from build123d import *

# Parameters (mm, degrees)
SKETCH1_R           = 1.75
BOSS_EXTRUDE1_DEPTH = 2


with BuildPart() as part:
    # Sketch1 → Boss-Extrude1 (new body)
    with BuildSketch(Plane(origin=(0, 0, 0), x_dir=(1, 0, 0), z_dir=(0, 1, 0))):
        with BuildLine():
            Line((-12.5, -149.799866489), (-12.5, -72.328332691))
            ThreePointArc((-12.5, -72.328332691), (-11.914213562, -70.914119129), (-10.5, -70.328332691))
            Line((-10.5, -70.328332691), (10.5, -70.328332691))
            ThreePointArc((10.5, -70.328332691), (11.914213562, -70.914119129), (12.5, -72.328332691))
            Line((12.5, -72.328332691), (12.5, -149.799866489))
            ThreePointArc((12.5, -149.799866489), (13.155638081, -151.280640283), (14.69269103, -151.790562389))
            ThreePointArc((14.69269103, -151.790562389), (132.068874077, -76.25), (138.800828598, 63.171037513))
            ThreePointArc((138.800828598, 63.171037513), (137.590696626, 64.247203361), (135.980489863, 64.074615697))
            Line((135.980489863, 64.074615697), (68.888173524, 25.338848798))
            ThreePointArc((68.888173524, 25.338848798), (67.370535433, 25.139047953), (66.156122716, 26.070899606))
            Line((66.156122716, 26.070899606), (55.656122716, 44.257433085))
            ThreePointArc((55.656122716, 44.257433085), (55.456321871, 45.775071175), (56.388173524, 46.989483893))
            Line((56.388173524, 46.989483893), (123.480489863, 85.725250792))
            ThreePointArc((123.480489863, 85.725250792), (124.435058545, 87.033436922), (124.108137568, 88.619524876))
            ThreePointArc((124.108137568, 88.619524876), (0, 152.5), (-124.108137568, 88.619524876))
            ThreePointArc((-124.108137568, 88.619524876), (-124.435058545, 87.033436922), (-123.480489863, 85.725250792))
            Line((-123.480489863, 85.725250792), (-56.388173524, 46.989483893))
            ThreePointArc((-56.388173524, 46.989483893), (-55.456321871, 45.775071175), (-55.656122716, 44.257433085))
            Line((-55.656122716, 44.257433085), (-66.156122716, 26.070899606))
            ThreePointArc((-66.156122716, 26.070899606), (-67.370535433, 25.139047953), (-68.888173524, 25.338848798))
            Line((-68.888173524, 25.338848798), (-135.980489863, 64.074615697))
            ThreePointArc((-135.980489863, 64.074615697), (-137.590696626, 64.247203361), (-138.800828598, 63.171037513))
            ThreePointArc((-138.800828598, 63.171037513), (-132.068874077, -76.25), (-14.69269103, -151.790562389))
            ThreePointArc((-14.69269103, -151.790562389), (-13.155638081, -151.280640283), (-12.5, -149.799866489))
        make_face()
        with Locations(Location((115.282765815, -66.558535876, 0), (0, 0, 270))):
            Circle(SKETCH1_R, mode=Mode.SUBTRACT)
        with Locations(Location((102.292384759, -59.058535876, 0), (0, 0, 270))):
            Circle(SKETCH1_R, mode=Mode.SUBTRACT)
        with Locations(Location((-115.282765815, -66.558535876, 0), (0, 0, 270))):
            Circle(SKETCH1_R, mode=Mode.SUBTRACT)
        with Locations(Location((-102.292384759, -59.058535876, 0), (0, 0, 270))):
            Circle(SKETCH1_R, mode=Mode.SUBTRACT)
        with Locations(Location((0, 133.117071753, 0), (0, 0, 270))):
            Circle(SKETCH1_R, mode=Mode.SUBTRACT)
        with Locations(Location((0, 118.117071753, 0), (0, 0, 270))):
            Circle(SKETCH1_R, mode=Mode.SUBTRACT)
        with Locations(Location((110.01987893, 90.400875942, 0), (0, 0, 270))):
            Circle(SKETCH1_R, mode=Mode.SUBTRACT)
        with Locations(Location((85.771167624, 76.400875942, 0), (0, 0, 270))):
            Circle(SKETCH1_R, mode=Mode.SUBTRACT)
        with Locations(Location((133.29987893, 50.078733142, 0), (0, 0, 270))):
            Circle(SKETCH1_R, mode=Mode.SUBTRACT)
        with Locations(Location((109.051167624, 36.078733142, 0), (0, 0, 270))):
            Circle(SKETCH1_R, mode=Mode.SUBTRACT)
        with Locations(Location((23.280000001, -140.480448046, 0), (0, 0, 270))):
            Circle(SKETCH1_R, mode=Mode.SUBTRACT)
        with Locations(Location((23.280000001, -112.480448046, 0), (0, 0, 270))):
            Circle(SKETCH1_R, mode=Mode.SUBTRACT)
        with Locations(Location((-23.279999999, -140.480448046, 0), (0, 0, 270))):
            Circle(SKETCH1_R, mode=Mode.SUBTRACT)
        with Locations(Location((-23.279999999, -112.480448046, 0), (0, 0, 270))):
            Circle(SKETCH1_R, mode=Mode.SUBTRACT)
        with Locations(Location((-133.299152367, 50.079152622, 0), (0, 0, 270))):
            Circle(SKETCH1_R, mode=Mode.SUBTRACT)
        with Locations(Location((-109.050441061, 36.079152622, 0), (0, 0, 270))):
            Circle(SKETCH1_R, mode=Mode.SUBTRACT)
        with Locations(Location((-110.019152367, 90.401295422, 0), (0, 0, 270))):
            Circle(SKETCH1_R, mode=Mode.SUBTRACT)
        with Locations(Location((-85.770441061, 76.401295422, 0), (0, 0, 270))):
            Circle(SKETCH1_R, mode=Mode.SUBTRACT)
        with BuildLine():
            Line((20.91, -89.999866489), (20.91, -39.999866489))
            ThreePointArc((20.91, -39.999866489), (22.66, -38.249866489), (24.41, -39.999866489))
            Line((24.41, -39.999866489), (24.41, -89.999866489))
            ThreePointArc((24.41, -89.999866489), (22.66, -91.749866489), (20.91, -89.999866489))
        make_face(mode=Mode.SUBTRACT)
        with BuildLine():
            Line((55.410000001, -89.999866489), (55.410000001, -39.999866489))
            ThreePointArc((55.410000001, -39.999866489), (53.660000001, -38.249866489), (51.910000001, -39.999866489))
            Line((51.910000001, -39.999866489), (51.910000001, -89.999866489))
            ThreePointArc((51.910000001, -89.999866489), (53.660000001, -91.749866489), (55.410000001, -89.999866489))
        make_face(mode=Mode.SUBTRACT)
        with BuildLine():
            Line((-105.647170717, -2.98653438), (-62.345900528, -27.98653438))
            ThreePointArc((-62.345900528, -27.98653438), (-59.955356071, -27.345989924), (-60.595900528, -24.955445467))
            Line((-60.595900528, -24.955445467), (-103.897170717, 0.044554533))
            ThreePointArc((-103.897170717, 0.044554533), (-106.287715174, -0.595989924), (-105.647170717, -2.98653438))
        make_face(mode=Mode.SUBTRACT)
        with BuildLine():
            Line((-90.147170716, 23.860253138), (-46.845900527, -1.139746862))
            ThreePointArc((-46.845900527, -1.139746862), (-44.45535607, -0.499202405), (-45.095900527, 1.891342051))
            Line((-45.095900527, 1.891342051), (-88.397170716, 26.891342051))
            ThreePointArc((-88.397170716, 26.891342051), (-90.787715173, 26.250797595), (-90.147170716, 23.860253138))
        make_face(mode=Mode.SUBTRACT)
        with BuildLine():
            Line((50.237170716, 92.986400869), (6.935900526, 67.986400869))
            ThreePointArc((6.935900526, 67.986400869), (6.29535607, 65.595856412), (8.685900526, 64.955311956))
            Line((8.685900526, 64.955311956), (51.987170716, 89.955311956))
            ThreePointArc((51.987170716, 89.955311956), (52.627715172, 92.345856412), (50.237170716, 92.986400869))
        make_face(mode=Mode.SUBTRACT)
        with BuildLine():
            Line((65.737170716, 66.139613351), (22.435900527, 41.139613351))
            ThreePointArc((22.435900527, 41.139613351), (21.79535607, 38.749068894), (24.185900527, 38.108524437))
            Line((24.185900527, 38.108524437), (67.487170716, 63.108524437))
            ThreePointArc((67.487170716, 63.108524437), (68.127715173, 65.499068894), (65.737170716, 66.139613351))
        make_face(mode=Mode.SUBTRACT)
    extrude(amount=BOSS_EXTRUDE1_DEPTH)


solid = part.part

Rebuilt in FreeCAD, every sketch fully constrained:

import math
import FreeCAD as App
import Part
import Sketcher

V = App.Vector
Q = App.Units.Quantity

doc = App.newDocument("Part")
body = doc.addObject("PartDesign::Body", "Body")

# Sketch on XZ plane
sketch1 = doc.addObject("Sketcher::SketchObject", "Sketch")
body.addObject(sketch1)
sketch1.AttachmentSupport = (doc.XZ_Plane, [""])
sketch1.MapMode = "FlatFace"
sketch1.addGeometry([
    Part.LineSegment(V(-12.5, 149.8, 0), V(-12.5, 72.3, 0)),  # 0
    Part.ArcOfCircle(Part.Circle(V(-10.5, 72.3, 0), V(0, 0, 1), 2), math.radians(-180), math.radians(-90)),  # 1
    Part.LineSegment(V(-10.5, 70.3, 0), V(10.5, 70.3, 0)),  # 2
    Part.ArcOfCircle(Part.Circle(V(10.5, 72.3, 0), V(0, 0, 1), 2), math.radians(-90), math.radians(0)),  # 3
    Part.LineSegment(V(12.5, 72.3, 0), V(12.5, 149.8, 0)),  # 4
    Part.ArcOfCircle(Part.Circle(V(14.5, 149.8, 0), V(0, 0, 1), 2), math.radians(84), math.radians(180)),  # 5
    Part.ArcOfCircle(Part.Circle(V(0, 0, 0), V(0, 0, 1), 152.5), math.radians(-24), math.radians(84)),  # 6
    Part.ArcOfCircle(Part.Circle(V(137, -62.3, 0), V(0, 0, 1), 2), math.radians(-120), math.radians(-24)),  # 7
    Part.LineSegment(V(136, -64.1, 0), V(68.9, -25.3, 0)),  # 8
    Part.ArcOfCircle(Part.Circle(V(67.9, -27.1, 0), V(0, 0, 1), 2), math.radians(60), math.radians(150)),  # 9
    Part.LineSegment(V(66.2, -26.1, 0), V(55.7, -44.3, 0)),  # 10
    Part.ArcOfCircle(Part.Circle(V(57.4, -45.3, 0), V(0, 0, 1), 2), math.radians(150), math.radians(240)),  # 11
    Part.LineSegment(V(56.4, -47, 0), V(123.5, -85.7, 0)),  # 12
    Part.ArcOfCircle(Part.Circle(V(122.5, -87.5, 0), V(0, 0, 1), 2), math.radians(-36), math.radians(60)),  # 13
    Part.ArcOfCircle(Part.Circle(V(0, 0, 0), V(0, 0, 1), 152.5), math.radians(-144), math.radians(-36)),  # 14
    Part.ArcOfCircle(Part.Circle(V(-122.5, -87.5, 0), V(0, 0, 1), 2), math.radians(120), math.radians(216)),  # 15
    Part.LineSegment(V(-123.5, -85.7, 0), V(-56.4, -47, 0)),  # 16
    Part.ArcOfCircle(Part.Circle(V(-57.4, -45.3, 0), V(0, 0, 1), 2), math.radians(-60), math.radians(30)),  # 17
    Part.LineSegment(V(-55.7, -44.3, 0), V(-66.2, -26.1, 0)),  # 18
    Part.ArcOfCircle(Part.Circle(V(-67.9, -27.1, 0), V(0, 0, 1), 2), math.radians(30), math.radians(120)),  # 19
    Part.LineSegment(V(-68.9, -25.3, 0), V(-136, -64.1, 0)),  # 20
    Part.ArcOfCircle(Part.Circle(V(-137, -62.3, 0), V(0, 0, 1), 2), math.radians(-156), math.radians(-60)),  # 21
    Part.ArcOfCircle(Part.Circle(V(0, 0, 0), V(0, 0, 1), 152.5), math.radians(96), math.radians(204)),  # 22
    Part.ArcOfCircle(Part.Circle(V(-14.5, 149.8, 0), V(0, 0, 1), 2), math.radians(0), math.radians(96)),  # 23
    Part.Circle(V(-23.3, 140.5, 0), V(0, 0, 1), 1.8),  # 24
    Part.Circle(V(-23.3, 112.5, 0), V(0, 0, 1), 1.8),  # 25
    Part.Circle(V(-115.3, 66.6, 0), V(0, 0, 1), 1.8),  # 26
    Part.Circle(V(-102.3, 59.1, 0), V(0, 0, 1), 1.8),  # 27
    Part.LineSegment(V(-62.3, 28, 0), V(-105.6, 3, 0)),  # 28
    Part.ArcOfCircle(Part.Circle(V(-104.8, 1.5, 0), V(0, 0, 1), 1.8), math.radians(120), math.radians(300)),  # 29
    Part.LineSegment(V(-103.9, 0, 0), V(-60.6, 25, 0)),  # 30
    Part.ArcOfCircle(Part.Circle(V(-61.5, 26.5, 0), V(0, 0, 1), 1.8), math.radians(-60), math.radians(120)),  # 31
    Part.Circle(V(23.3, 140.5, 0), V(0, 0, 1), 1.8),  # 32
    Part.Circle(V(23.3, 112.5, 0), V(0, 0, 1), 1.8),  # 33
    Part.ArcOfCircle(Part.Circle(V(22.7, 90, 0), V(0, 0, 1), 1.8), math.radians(0), math.radians(180)),  # 34
    Part.LineSegment(V(20.9, 90, 0), V(20.9, 40, 0)),  # 35
    Part.ArcOfCircle(Part.Circle(V(22.7, 40, 0), V(0, 0, 1), 1.8), math.radians(180), math.radians(360)),  # 36
    Part.LineSegment(V(24.4, 40, 0), V(24.4, 90, 0)),  # 37
    Part.LineSegment(V(55.4, 40, 0), V(55.4, 90, 0)),  # 38
    Part.ArcOfCircle(Part.Circle(V(53.7, 90, 0), V(0, 0, 1), 1.8), math.radians(0), math.radians(180)),  # 39
    Part.LineSegment(V(51.9, 90, 0), V(51.9, 40, 0)),  # 40
    Part.ArcOfCircle(Part.Circle(V(53.7, 40, 0), V(0, 0, 1), 1.8), math.radians(180), math.radians(360)),  # 41
    Part.Circle(V(115.3, 66.6, 0), V(0, 0, 1), 1.8),  # 42
    Part.Circle(V(102.3, 59.1, 0), V(0, 0, 1), 1.8),  # 43
    Part.LineSegment(V(-46.8, 1.1, 0), V(-90.1, -23.9, 0)),  # 44
    Part.ArcOfCircle(Part.Circle(V(-89.3, -25.4, 0), V(0, 0, 1), 1.8), math.radians(120), math.radians(300)),  # 45
    Part.LineSegment(V(-88.4, -26.9, 0), V(-45.1, -1.9, 0)),  # 46
    Part.ArcOfCircle(Part.Circle(V(-46, -0.4, 0), V(0, 0, 1), 1.8), math.radians(-60), math.radians(120)),  # 47
    Part.Circle(V(-109.1, -36.1, 0), V(0, 0, 1), 1.8),  # 48
    Part.Circle(V(-133.3, -50.1, 0), V(0, 0, 1), 1.8),  # 49
    Part.Circle(V(-110, -90.4, 0), V(0, 0, 1), 1.8),  # 50
    Part.Circle(V(-85.8, -76.4, 0), V(0, 0, 1), 1.8),  # 51
    Part.Circle(V(0, -118.1, 0), V(0, 0, 1), 1.8),  # 52
    Part.Circle(V(0, -133.1, 0), V(0, 0, 1), 1.8),  # 53
    Part.LineSegment(V(22.4, -41.1, 0), V(65.7, -66.1, 0)),  # 54
    Part.ArcOfCircle(Part.Circle(V(66.6, -64.6, 0), V(0, 0, 1), 1.8), math.radians(-120), math.radians(60)),  # 55
    Part.LineSegment(V(67.5, -63.1, 0), V(24.2, -38.1, 0)),  # 56
    Part.ArcOfCircle(Part.Circle(V(23.3, -39.6, 0), V(0, 0, 1), 1.8), math.radians(60), math.radians(240)),  # 57
    Part.Circle(V(109.1, -36.1, 0), V(0, 0, 1), 1.8),  # 58
    Part.Circle(V(133.3, -50.1, 0), V(0, 0, 1), 1.8),  # 59
    Part.LineSegment(V(6.9, -68, 0), V(50.2, -93, 0)),  # 60
    Part.ArcOfCircle(Part.Circle(V(51.1, -91.5, 0), V(0, 0, 1), 1.8), math.radians(-120), math.radians(60)),  # 61
    Part.LineSegment(V(52, -90, 0), V(8.7, -65, 0)),  # 62
    Part.ArcOfCircle(Part.Circle(V(7.8, -66.5, 0), V(0, 0, 1), 1.8), math.radians(60), math.radians(240)),  # 63
    Part.Circle(V(85.8, -76.4, 0), V(0, 0, 1), 1.8),  # 64
    Part.Circle(V(110, -90.4, 0), V(0, 0, 1), 1.8),  # 65
], False)
sketch1.addConstraint([
    Sketcher.Constraint("Tangent", 0, 2, 1, 1),
    Sketcher.Constraint("Tangent", 1, 2, 2, 1),
    Sketcher.Constraint("Tangent", 2, 2, 3, 1),
    Sketcher.Constraint("Tangent", 3, 2, 4, 1),
    Sketcher.Constraint("Tangent", 4, 2, 5, 2),
    Sketcher.Constraint("Tangent", 5, 1, 6, 2),
    Sketcher.Constraint("Tangent", 6, 1, 7, 2),
    Sketcher.Constraint("Tangent", 7, 1, 8, 1),
    Sketcher.Constraint("Tangent", 8, 2, 9, 1),
    Sketcher.Constraint("Tangent", 9, 2, 10, 1),
    Sketcher.Constraint("Tangent", 10, 2, 11, 1),
    Sketcher.Constraint("Tangent", 11, 2, 12, 1),
    Sketcher.Constraint("Tangent", 12, 2, 13, 2),
    Sketcher.Constraint("Tangent", 13, 1, 14, 2),
    Sketcher.Constraint("Tangent", 14, 1, 15, 2),
    Sketcher.Constraint("Tangent", 15, 1, 16, 1),
    Sketcher.Constraint("Tangent", 16, 2, 17, 1),
    Sketcher.Constraint("Tangent", 17, 2, 18, 1),
    Sketcher.Constraint("Tangent", 18, 2, 19, 1),
    Sketcher.Constraint("Tangent", 19, 2, 20, 1),
    Sketcher.Constraint("Tangent", 20, 2, 21, 2),
    Sketcher.Constraint("Tangent", 21, 1, 22, 2),
    Sketcher.Constraint("Tangent", 22, 1, 23, 2),
    Sketcher.Constraint("Tangent", 23, 1, 0, 1),
    Sketcher.Constraint("Tangent", 28, 2, 29, 1),
    Sketcher.Constraint("Tangent", 29, 2, 30, 1),
    Sketcher.Constraint("Tangent", 30, 2, 31, 1),
    Sketcher.Constraint("Tangent", 31, 2, 28, 1),
    Sketcher.Constraint("Tangent", 34, 2, 35, 1),
    Sketcher.Constraint("Tangent", 35, 2, 36, 1),
    Sketcher.Constraint("Tangent", 36, 2, 37, 1),
    Sketcher.Constraint("Tangent", 37, 2, 34, 1),
    Sketcher.Constraint("Tangent", 38, 2, 39, 1),
    Sketcher.Constraint("Tangent", 39, 2, 40, 1),
    Sketcher.Constraint("Tangent", 40, 2, 41, 1),
    Sketcher.Constraint("Tangent", 41, 2, 38, 1),
    Sketcher.Constraint("Tangent", 44, 2, 45, 1),
    Sketcher.Constraint("Tangent", 45, 2, 46, 1),
    Sketcher.Constraint("Tangent", 46, 2, 47, 1),
    Sketcher.Constraint("Tangent", 47, 2, 44, 1),
    Sketcher.Constraint("Tangent", 54, 2, 55, 1),
    Sketcher.Constraint("Tangent", 55, 2, 56, 1),
    Sketcher.Constraint("Tangent", 56, 2, 57, 1),
    Sketcher.Constraint("Tangent", 57, 2, 54, 1),
    Sketcher.Constraint("Tangent", 60, 2, 61, 1),
    Sketcher.Constraint("Tangent", 61, 2, 62, 1),
    Sketcher.Constraint("Tangent", 62, 2, 63, 1),
    Sketcher.Constraint("Tangent", 63, 2, 60, 1),
    Sketcher.Constraint("Vertical", 0),
    Sketcher.Constraint("Horizontal", 2),
    Sketcher.Constraint("Vertical", 4),
    Sketcher.Constraint("Vertical", 35),
    Sketcher.Constraint("Vertical", 37),
    Sketcher.Constraint("Vertical", 38),
    Sketcher.Constraint("Vertical", 40),
    Sketcher.Constraint("Coincident", 6, 3, -1, 1),
    Sketcher.Constraint("Coincident", 14, 3, -1, 1),
    Sketcher.Constraint("Coincident", 22, 3, -1, 1),
    Sketcher.Constraint("Equal", 1, 3),
    Sketcher.Constraint("Equal", 3, 5),
    Sketcher.Constraint("Equal", 5, 7),
    Sketcher.Constraint("Equal", 7, 9),
    Sketcher.Constraint("Equal", 9, 11),
    Sketcher.Constraint("Equal", 11, 13),
    Sketcher.Constraint("Equal", 6, 14),
    Sketcher.Constraint("Equal", 13, 15),
    Sketcher.Constraint("Equal", 15, 17),
    Sketcher.Constraint("Equal", 17, 19),
    Sketcher.Constraint("Equal", 19, 21),
    Sketcher.Constraint("Equal", 14, 22),
    Sketcher.Constraint("Equal", 21, 23),
    Sketcher.Constraint("Equal", 24, 25),
    Sketcher.Constraint("Equal", 25, 26),
    Sketcher.Constraint("Equal", 26, 27),
    Sketcher.Constraint("Equal", 27, 29),
    Sketcher.Constraint("Equal", 29, 31),
    Sketcher.Constraint("Equal", 31, 32),
    Sketcher.Constraint("Equal", 32, 33),
    Sketcher.Constraint("Equal", 33, 34),
    Sketcher.Constraint("Equal", 36, 39),
    Sketcher.Constraint("Equal", 41, 42),
    Sketcher.Constraint("Equal", 42, 43),
    Sketcher.Constraint("Equal", 43, 45),
    Sketcher.Constraint("Equal", 45, 47),
    Sketcher.Constraint("Equal", 47, 48),
    Sketcher.Constraint("Equal", 48, 49),
    Sketcher.Constraint("Equal", 49, 50),
    Sketcher.Constraint("Equal", 50, 51),
    Sketcher.Constraint("Equal", 51, 52),
    Sketcher.Constraint("Equal", 52, 53),
    Sketcher.Constraint("Equal", 53, 55),
    Sketcher.Constraint("Equal", 55, 57),
    Sketcher.Constraint("Equal", 57, 58),
    Sketcher.Constraint("Equal", 58, 59),
    Sketcher.Constraint("Equal", 59, 61),
    Sketcher.Constraint("Equal", 61, 63),
    Sketcher.Constraint("Equal", 63, 64),
    Sketcher.Constraint("Equal", 64, 65),
    Sketcher.Constraint("Symmetric", 11, 3, 17, 3, -2),
    Sketcher.Constraint("Symmetric", 9, 3, 19, 3, -2),
    Sketcher.Constraint("Symmetric", 24, 3, 32, 3, -2),
    Sketcher.Constraint("Symmetric", 25, 3, 33, 3, -2),
    Sketcher.Constraint("Symmetric", 26, 3, 42, 3, -2),
    Sketcher.Constraint("Symmetric", 27, 3, 43, 3, -2),
    Sketcher.Constraint("PointOnObject", 52, 3, -2),
    Sketcher.Constraint("PointOnObject", 53, 3, -2),
    Sketcher.Constraint("Perpendicular", 8, 10),
    Sketcher.Constraint("Perpendicular", 10, 12),
    Sketcher.Constraint("Perpendicular", 16, 18),
    Sketcher.Constraint("Perpendicular", 18, 20),
    Sketcher.Constraint("Parallel", 20, 28),
    Sketcher.Constraint("Parallel", 30, 44),
    Sketcher.Constraint("Parallel", 12, 54),
    Sketcher.Constraint("Parallel", 56, 60),
    Sketcher.Constraint("Horizontal", 5, 3, 23, 3),
    Sketcher.Constraint("Horizontal", 34, 3, 39, 3),
    Sketcher.Constraint("Horizontal", 36, 3, 41, 3),
    Sketcher.Constraint("Vertical", 24, 3, 25, 3),
    Sketcher.Constraint("Equal", 8, 12),
    Sketcher.Constraint("Equal", 30, 44),
    Sketcher.Constraint("Equal", 46, 54),
    Sketcher.Constraint("Equal", 56, 60),
    Sketcher.Constraint("Radius", 1, 2.0),
    Sketcher.Constraint("Diameter", 24, 3.5),
    Sketcher.Constraint("Radius", 6, 152.5),
    Sketcher.Constraint("DistanceX", 2, 1, 2, 2, 21.0),
    Sketcher.Constraint("DistanceY", 35, 2, 35, 1, 50.0),
    Sketcher.Constraint("Angle", 8, Q("150 deg")),
    Sketcher.Constraint("Distance", 10, 21.0),
    Sketcher.Constraint("Distance", 28, 50.0),
    Sketcher.Constraint("DistanceX", 24, 3, -1, 1, 23.28),
    Sketcher.Constraint("DistanceX", -1, 1, 34, 3, 22.66),
    Sketcher.Constraint("DistanceX", -1, 1, 39, 3, 53.66),
    Sketcher.Constraint("DistanceY", 9, 3, -1, 1, 27.0709),
    Sketcher.Constraint("DistanceX", 31, 3, -1, 1, 61.470901),
    Sketcher.Constraint("DistanceX", 47, 3, -1, 1, 45.970901),
    Sketcher.Constraint("DistanceX", -1, 1, 57, 3, 23.310901),
    Sketcher.Constraint("DistanceX", -1, 1, 63, 3, 7.810901),
    Sketcher.Constraint("DistanceY", 60, 2, -1, 1, 92.986401),
    Sketcher.Constraint("DistanceY", 0, 2, 0, 1, 77.471534),
    Sketcher.Constraint("DistanceY", -1, 1, 24, 3, 140.480448),
    Sketcher.Constraint("DistanceY", -1, 1, 25, 3, 112.480448),
    Sketcher.Constraint("DistanceY", -1, 1, 29, 3, 1.47099),
    Sketcher.Constraint("DistanceX", 48, 3, -1, 1, 109.050441),
    Sketcher.Constraint("DistanceX", 51, 3, -1, 1, 85.770441),
    Sketcher.Constraint("DistanceY", 52, 3, -1, 1, 118.117072),
    Sketcher.Constraint("DistanceY", 53, 3, -1, 1, 133.117072),
    Sketcher.Constraint("DistanceY", 55, 3, -1, 1, 64.624069),
    Sketcher.Constraint("DistanceX", -1, 1, 59, 3, 133.299879),
    Sketcher.Constraint("DistanceX", -1, 1, 65, 3, 110.019879),
    Sketcher.Constraint("DistanceX", 26, 3, -1, 1, 115.282766),
    Sketcher.Constraint("DistanceY", -1, 1, 26, 3, 66.558536),
    Sketcher.Constraint("DistanceX", 27, 3, -1, 1, 102.292385),
    Sketcher.Constraint("DistanceY", -1, 1, 27, 3, 59.058536),
    Sketcher.Constraint("DistanceY", -1, 1, 34, 3, 89.999866),
    Sketcher.Constraint("DistanceY", 45, 3, -1, 1, 25.375798),
    Sketcher.Constraint("DistanceY", 48, 3, -1, 1, 36.079153),
    Sketcher.Constraint("DistanceX", 49, 3, -1, 1, 133.299152),
    Sketcher.Constraint("DistanceY", 49, 3, -1, 1, 50.079153),
    Sketcher.Constraint("DistanceX", 50, 3, -1, 1, 110.019152),
    Sketcher.Constraint("DistanceY", 50, 3, -1, 1, 90.401295),
    Sketcher.Constraint("DistanceY", 51, 3, -1, 1, 76.401295),
    Sketcher.Constraint("DistanceX", -1, 1, 58, 3, 109.051168),
    Sketcher.Constraint("DistanceY", 58, 3, -1, 1, 36.078733),
    Sketcher.Constraint("DistanceY", 59, 3, -1, 1, 50.078733),
    Sketcher.Constraint("DistanceX", -1, 1, 64, 3, 85.771168),
    Sketcher.Constraint("DistanceY", 64, 3, -1, 1, 76.400876),
    Sketcher.Constraint("DistanceY", 65, 3, -1, 1, 90.400876),
])
pad1 = doc.addObject("PartDesign::Pad", "Pad")
body.addObject(pad1)
pad1.Profile = sketch1
pad1.Length = 2
pad1.Reversed = True

doc.recompute()
